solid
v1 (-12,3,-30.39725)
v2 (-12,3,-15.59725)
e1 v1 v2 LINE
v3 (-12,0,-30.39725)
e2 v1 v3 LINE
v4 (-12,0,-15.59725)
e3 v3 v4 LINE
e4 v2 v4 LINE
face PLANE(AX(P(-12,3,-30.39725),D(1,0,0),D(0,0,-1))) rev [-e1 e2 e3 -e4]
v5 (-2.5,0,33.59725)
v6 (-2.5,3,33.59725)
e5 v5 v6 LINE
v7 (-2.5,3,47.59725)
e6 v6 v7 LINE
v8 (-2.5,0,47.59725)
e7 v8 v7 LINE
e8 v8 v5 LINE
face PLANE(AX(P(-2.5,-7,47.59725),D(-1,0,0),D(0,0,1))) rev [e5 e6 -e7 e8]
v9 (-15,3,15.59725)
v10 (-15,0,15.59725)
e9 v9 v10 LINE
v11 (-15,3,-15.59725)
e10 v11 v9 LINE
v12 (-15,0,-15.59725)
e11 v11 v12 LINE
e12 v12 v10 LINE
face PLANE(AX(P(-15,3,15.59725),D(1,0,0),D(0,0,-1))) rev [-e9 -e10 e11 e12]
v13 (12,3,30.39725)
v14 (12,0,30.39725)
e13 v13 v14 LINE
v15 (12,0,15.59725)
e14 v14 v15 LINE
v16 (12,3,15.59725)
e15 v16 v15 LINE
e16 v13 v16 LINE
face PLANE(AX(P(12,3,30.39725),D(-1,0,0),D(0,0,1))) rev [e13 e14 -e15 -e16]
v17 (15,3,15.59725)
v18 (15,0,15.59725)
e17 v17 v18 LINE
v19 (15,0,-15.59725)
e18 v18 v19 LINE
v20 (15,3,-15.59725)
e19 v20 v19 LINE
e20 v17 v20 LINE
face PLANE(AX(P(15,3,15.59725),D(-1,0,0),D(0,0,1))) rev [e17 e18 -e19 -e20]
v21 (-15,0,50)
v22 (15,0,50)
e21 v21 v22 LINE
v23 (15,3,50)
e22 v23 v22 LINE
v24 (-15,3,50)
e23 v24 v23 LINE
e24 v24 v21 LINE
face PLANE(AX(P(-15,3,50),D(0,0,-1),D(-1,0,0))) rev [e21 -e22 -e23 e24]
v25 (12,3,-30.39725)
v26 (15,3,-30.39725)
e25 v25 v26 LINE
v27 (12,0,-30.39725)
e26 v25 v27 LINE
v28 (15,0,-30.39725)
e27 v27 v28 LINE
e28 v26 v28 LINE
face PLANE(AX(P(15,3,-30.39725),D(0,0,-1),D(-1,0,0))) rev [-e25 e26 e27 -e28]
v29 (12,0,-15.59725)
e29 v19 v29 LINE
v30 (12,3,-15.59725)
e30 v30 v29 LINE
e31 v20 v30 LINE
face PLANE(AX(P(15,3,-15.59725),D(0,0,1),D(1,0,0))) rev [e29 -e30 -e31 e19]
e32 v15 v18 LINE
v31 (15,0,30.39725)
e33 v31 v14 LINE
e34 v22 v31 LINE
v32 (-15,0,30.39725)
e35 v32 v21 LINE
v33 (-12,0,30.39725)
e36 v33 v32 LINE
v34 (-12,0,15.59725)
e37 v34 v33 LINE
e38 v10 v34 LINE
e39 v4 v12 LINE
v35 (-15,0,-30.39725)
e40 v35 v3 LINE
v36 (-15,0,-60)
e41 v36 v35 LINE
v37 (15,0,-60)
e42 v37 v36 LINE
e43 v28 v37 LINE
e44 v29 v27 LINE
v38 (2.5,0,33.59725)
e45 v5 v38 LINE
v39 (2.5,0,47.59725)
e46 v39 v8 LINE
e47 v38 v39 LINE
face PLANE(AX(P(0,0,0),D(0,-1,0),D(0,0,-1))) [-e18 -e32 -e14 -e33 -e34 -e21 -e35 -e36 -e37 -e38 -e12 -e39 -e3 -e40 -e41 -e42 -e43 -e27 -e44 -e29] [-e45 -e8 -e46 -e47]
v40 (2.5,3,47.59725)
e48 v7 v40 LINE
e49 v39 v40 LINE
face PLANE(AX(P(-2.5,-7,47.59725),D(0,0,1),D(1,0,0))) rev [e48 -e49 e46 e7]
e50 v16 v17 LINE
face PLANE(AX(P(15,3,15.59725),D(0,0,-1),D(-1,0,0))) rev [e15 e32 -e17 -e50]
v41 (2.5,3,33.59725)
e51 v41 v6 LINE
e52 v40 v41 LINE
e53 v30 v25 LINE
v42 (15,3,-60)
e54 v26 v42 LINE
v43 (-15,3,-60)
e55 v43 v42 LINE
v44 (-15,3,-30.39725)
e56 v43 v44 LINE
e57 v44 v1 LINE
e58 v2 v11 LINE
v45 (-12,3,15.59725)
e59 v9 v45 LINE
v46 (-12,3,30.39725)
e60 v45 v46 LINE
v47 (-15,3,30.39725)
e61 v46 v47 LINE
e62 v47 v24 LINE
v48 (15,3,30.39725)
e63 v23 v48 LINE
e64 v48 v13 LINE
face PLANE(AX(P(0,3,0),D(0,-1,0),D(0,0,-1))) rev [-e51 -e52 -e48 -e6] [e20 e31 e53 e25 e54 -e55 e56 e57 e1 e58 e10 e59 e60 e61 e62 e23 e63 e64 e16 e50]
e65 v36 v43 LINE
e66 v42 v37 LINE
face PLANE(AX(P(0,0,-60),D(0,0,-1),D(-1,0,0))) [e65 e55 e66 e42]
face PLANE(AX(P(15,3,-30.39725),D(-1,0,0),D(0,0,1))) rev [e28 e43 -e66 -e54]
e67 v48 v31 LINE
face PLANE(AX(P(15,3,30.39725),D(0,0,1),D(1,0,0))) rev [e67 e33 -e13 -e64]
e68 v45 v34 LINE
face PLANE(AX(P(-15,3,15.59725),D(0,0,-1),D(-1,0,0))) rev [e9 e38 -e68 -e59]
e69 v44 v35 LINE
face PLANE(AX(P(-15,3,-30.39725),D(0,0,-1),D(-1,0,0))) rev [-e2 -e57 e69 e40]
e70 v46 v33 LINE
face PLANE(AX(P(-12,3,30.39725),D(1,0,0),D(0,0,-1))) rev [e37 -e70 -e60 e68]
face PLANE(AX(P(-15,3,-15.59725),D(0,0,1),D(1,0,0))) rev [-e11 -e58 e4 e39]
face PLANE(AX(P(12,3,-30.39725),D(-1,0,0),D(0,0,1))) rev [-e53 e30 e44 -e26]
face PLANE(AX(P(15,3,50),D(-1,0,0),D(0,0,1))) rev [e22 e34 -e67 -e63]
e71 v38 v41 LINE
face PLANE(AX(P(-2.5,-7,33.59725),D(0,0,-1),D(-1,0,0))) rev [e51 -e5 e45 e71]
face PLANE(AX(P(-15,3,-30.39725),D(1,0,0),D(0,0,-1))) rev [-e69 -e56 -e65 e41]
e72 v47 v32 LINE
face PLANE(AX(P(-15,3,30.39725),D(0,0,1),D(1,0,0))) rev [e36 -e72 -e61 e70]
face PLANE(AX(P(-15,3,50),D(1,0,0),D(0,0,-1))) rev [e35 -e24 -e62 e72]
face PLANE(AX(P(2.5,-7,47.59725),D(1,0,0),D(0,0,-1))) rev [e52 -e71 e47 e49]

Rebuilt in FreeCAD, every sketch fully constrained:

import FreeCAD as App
import Part
import Sketcher
from FreeCAD import Vector


def add_polygon(sketch, points):
    """Adds a closed chain of lines whose ends are joined by coincident constraints."""
    first, n = sketch.GeometryCount, len(points)
    for a, b in zip(points, points[1:] + points[:1]):
        sketch.addGeometry(Part.LineSegment(App.Vector(*a, 0), App.Vector(*b, 0)), False)
    for i in range(n):
        sketch.addConstraint(Sketcher.Constraint("Coincident", first + i, 2, first + (i + 1) % n, 1))

doc = App.newDocument("Part")
body = doc.addObject("PartDesign::Body", "Body")

# Sketch on XZ plane
sketch1 = body.newObject("Sketcher::SketchObject", "Sketch")
sketch1.AttachmentSupport = (doc.getObject("XZ_Plane"), [""])
sketch1.MapMode = "FlatFace"
add_polygon(sketch1, [(-15, 50), (15, 50), (15, 30.4), (12, 30.4), (12, 15.6), (15, 15.6), (15, -15.6), (12, -15.6), (12, -30.4), (15, -30.4), (15, -50), (-15, -50), (-15, -30.4), (-12, -30.4), (-12, -15.6), (-15, -15.6), (-15, 15.6), (-12, 15.6), (-12, 30.4), (-15, 30.4)])  # lines 0-19
sketch1.addConstraint([
    Sketcher.Constraint("Horizontal", 0),
    Sketcher.Constraint("Vertical", 1),
    Sketcher.Constraint("Horizontal", 2),
    Sketcher.Constraint("Vertical", 3),
    Sketcher.Constraint("Horizontal", 4),
    Sketcher.Constraint("Vertical", 5),
    Sketcher.Constraint("Horizontal", 6),
    Sketcher.Constraint("Vertical", 7),
    Sketcher.Constraint("Horizontal", 8),
    Sketcher.Constraint("Vertical", 9),
    Sketcher.Constraint("Horizontal", 10),
    Sketcher.Constraint("Vertical", 11),
    Sketcher.Constraint("Horizontal", 12),
    Sketcher.Constraint("Vertical", 13),
    Sketcher.Constraint("Horizontal", 14),
    Sketcher.Constraint("Vertical", 15),
    Sketcher.Constraint("Horizontal", 16),
    Sketcher.Constraint("Vertical", 17),
    Sketcher.Constraint("Horizontal", 18),
    Sketcher.Constraint("Vertical", 19),
    Sketcher.Constraint("Symmetric", 0, 2, 10, 2, -1, 1),
    Sketcher.Constraint("Symmetric", 2, 2, 12, 2, -1, 1),
    Sketcher.Constraint("Symmetric", 4, 2, 14, 2, -1, 1),
    Sketcher.Constraint("Symmetric", 6, 2, 16, 2, -1, 1),
    Sketcher.Constraint("Symmetric", 8, 2, 18, 2, -1, 1),
    Sketcher.Constraint("Symmetric", 8, 2, 11, 2, -2),
    Sketcher.Constraint("Symmetric", 6, 2, 13, 2, -2),
    Sketcher.Constraint("Vertical", 1, 2, 4, 2),
    Sketcher.Constraint("DistanceX", 0, 1, 0, 2, 30.0),
    Sketcher.Constraint("DistanceX", 2, 2, 2, 1, 3.0),
    Sketcher.Constraint("DistanceY", 3, 2, 3, 1, 14.8),
    Sketcher.Constraint("DistanceY", -1, 1, 0, 2, 50.0),
    Sketcher.Constraint("DistanceY", 5, 2, 5, 1, 31.194499),
])
pad1 = body.newObject("PartDesign::Pad", "Pad")
pad1.Profile = sketch1
pad1.Length = 3
pad1.Reversed = True

# Sketch on XY plane
sketch2 = body.newObject("Sketcher::SketchObject", "Sketch001")
sketch2.AttachmentSupport = (doc.getObject("XY_Plane"), [""])
sketch2.MapMode = "FlatFace"
sketch2.AttachmentOffset = App.Placement(Vector(0, 0, -50), App.Rotation())
add_polygon(sketch2, [(15, 3), (15, 0), (-15, 0), (-15, 3)])  # lines 0-3
sketch2.addConstraint([
    Sketcher.Constraint("Vertical", 0),
    Sketcher.Constraint("Horizontal", 1),
    Sketcher.Constraint("Vertical", 2),
    Sketcher.Constraint("Horizontal", 3),
    Sketcher.Constraint("Symmetric", 0, 2, 1, 2, -1, 1),
    Sketcher.Constraint("DistanceX", 1, 2, 1, 1, 30.0),
    Sketcher.Constraint("DistanceY", 0, 2, 0, 1, 3.0),
])
pad2 = body.newObject("PartDesign::Pad", "Pad001")
pad2.Profile = sketch2
pad2.Length = 10
pad2.Reversed = True

# Sketch on XZ plane
sketch3 = body.newObject("Sketcher::SketchObject", "Sketch002")
sketch3.AttachmentSupport = (doc.getObject("XZ_Plane"), [""])
sketch3.MapMode = "FlatFace"
sketch3.AttachmentOffset = App.Placement(Vector(0, 0, -3), App.Rotation())
add_polygon(sketch3, [(-2, 34), (-2, 48), (2, 48), (2, 34)])  # lines 0-3
sketch3.addConstraint([
    Sketcher.Constraint("Vertical", 0),
    Sketcher.Constraint("Horizontal", 1),
    Sketcher.Constraint("Vertical", 2),
    Sketcher.Constraint("Horizontal", 3),
    Sketcher.Constraint("DistanceX", 1, 1, 1, 2, 5.0),
    Sketcher.Constraint("DistanceY", 0, 1, 0, 2, 14.0),
    Sketcher.Constraint("DistanceX", 0, 2, -1, 1, 2.5),
    Sketcher.Constraint("DistanceY", -1, 1, 0, 2, 47.59725),
])
pocket1 = body.newObject("PartDesign::Pocket", "Pocket")
pocket1.Profile = sketch3
pocket1.Length = 10
pocket1.Reversed = True

doc.recompute()
